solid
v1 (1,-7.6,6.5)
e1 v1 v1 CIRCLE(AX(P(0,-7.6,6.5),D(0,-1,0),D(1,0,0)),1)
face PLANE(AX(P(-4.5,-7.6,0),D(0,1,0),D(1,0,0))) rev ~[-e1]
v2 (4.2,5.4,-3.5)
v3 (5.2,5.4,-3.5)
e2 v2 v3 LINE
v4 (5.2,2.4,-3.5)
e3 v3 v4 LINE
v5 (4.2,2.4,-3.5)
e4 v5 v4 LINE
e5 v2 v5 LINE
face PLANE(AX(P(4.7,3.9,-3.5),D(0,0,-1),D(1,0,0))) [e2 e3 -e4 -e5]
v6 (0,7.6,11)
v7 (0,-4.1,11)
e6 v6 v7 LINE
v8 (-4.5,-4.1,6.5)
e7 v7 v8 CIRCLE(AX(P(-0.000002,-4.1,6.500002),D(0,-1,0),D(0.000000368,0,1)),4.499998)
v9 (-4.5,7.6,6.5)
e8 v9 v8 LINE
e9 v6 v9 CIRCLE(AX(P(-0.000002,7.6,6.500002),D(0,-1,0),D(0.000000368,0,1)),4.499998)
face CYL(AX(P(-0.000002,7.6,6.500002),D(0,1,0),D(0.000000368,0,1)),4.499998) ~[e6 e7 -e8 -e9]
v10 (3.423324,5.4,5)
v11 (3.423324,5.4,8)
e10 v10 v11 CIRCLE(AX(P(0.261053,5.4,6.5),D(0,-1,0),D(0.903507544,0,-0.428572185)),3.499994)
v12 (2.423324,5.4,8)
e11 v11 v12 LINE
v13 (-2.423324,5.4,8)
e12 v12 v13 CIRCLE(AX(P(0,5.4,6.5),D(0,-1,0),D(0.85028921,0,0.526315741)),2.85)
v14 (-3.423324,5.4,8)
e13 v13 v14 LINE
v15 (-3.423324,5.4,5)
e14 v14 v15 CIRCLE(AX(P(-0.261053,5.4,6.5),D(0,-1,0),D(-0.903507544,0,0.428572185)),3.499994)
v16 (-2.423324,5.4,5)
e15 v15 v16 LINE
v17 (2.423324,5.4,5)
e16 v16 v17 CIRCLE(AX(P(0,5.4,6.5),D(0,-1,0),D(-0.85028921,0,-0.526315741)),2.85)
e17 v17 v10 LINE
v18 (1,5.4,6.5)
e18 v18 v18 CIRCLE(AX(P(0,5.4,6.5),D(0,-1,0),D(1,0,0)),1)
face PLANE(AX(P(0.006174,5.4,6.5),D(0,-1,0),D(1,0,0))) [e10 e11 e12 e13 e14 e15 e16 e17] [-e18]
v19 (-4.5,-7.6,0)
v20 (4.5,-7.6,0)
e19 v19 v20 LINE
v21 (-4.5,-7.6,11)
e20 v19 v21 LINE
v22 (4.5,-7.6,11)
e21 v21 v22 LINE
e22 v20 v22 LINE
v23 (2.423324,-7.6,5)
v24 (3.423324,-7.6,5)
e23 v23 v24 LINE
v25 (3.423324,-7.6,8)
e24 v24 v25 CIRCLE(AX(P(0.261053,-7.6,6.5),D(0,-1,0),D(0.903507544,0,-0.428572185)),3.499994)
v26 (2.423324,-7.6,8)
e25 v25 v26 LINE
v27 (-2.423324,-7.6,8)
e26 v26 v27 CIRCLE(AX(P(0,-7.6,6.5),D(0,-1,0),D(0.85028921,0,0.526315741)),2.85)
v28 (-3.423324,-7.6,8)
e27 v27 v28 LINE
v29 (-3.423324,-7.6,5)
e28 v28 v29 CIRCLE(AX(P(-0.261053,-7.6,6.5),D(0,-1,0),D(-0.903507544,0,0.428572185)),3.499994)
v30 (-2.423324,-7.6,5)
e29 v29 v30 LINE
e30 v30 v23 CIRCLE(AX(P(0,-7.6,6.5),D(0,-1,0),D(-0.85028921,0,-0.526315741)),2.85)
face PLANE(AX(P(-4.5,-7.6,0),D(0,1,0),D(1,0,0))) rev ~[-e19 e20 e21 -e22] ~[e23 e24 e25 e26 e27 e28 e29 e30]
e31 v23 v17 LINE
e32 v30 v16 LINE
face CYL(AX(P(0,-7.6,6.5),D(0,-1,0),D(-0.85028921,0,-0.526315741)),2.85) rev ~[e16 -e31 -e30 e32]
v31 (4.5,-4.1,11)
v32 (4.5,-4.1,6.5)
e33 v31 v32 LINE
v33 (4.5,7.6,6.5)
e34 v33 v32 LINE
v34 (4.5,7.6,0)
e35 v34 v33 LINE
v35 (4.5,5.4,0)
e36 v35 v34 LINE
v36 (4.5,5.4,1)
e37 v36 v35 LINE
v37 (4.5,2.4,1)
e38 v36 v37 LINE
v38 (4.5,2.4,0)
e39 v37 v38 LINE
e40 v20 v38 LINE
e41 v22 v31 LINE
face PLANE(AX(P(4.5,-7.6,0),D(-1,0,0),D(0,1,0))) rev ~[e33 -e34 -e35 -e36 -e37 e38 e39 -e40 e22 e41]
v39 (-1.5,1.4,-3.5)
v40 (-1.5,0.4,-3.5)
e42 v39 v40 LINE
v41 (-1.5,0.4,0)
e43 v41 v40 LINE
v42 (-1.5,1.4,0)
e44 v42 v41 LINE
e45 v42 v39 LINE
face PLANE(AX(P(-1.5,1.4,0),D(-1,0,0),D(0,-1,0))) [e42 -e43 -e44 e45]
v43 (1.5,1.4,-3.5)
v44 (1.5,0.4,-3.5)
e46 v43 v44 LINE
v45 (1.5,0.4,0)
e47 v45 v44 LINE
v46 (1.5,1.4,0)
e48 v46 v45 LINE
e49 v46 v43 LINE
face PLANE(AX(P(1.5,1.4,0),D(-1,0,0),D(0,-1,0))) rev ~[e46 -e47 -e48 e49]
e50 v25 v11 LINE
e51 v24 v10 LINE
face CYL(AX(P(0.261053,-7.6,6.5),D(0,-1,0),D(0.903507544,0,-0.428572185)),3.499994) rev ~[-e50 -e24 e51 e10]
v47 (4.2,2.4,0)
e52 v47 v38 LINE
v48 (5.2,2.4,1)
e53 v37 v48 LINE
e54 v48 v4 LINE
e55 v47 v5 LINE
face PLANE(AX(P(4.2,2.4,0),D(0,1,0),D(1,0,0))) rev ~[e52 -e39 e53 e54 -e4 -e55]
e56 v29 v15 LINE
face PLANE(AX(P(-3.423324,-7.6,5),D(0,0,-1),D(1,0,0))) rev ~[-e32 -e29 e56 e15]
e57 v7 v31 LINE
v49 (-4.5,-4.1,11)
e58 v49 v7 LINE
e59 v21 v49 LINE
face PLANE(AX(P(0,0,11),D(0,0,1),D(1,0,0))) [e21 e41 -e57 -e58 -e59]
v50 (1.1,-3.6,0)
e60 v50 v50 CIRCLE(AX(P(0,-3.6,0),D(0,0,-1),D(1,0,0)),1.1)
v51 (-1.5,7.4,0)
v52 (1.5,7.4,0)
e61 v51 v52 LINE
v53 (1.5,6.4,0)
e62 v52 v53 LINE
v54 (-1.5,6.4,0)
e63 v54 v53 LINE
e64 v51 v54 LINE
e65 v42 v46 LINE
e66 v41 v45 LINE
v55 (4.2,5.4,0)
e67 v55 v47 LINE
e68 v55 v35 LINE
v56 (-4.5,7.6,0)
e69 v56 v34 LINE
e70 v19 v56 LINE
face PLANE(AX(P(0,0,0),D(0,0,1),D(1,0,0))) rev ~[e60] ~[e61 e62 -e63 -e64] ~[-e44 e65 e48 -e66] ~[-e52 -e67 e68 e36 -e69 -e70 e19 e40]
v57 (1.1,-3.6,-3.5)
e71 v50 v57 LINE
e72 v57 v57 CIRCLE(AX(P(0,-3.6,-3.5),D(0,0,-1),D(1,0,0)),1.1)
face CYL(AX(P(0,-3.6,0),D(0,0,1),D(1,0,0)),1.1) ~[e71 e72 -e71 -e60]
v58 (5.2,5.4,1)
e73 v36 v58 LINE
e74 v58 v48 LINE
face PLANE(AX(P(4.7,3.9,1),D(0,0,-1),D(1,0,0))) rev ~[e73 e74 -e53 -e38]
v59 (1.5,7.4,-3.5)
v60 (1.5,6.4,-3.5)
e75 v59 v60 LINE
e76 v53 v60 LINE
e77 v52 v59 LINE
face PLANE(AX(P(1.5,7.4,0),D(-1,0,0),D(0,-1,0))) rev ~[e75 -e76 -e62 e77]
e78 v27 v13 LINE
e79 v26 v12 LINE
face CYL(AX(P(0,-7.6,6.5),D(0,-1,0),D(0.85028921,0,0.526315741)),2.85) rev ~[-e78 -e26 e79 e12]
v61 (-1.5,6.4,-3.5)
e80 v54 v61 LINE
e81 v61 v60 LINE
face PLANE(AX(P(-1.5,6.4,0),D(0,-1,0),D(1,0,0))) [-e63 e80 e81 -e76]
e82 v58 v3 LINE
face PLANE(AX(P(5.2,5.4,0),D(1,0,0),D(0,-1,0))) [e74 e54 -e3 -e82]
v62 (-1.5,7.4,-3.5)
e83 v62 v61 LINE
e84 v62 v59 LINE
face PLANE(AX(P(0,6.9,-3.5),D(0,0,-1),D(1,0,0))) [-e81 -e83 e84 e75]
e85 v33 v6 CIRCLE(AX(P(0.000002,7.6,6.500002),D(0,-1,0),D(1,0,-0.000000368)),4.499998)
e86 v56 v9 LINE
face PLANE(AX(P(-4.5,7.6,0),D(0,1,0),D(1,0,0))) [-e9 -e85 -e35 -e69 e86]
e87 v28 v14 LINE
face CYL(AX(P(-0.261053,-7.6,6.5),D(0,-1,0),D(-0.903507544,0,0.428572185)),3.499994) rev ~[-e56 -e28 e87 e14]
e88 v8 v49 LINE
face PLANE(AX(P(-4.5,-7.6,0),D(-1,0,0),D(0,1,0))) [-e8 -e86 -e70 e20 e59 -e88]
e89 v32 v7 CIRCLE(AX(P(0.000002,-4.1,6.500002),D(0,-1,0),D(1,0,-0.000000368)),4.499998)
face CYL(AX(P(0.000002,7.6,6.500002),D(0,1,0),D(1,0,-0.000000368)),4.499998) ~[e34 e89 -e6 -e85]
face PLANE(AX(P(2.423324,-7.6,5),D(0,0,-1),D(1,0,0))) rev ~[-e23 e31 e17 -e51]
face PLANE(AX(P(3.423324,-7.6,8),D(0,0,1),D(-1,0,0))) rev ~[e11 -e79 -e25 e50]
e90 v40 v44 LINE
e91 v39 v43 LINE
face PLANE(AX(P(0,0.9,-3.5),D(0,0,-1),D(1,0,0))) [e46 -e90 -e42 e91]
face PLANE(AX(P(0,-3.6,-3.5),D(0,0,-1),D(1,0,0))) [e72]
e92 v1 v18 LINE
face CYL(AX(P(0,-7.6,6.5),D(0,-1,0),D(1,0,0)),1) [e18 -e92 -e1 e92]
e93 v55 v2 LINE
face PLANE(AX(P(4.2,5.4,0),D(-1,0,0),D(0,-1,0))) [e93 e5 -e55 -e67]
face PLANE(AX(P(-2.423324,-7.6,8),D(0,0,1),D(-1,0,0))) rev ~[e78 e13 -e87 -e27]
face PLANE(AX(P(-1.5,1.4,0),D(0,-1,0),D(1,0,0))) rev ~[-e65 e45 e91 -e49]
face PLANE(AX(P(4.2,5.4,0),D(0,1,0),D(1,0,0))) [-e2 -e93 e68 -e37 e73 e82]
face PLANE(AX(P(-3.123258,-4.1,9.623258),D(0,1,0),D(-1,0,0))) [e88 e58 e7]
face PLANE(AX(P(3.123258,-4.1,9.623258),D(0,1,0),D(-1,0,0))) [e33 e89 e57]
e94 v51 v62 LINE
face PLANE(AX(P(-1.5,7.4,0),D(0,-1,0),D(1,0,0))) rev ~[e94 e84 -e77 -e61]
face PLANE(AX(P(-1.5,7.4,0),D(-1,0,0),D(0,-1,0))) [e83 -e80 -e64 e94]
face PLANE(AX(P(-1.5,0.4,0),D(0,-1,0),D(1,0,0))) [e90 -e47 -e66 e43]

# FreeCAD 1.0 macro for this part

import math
import FreeCAD as App
import Part
import Sketcher
from FreeCAD import Vector
Q = App.Units.Quantity


def add_polygon(sketch, points):
    """Adds a closed chain of lines whose ends are joined by coincident constraints."""
    first, n = sketch.GeometryCount, len(points)
    for a, b in zip(points, points[1:] + points[:1]):
        sketch.addGeometry(Part.LineSegment(App.Vector(*a, 0), App.Vector(*b, 0)), False)
    for i in range(n):
        sketch.addConstraint(Sketcher.Constraint("Coincident", first + i, 2, first + (i + 1) % n, 1))

doc = App.newDocument("Part")
body = doc.addObject("PartDesign::Body", "Body")

# Sketch on XY plane
sketch1 = doc.addObject("Sketcher::SketchObject", "Sketch")
body.addObject(sketch1)
sketch1.AttachmentSupport = (doc.XY_Plane, [""])
sketch1.MapMode = "FlatFace"
add_polygon(sketch1, [(-4.5, 7.6), (-4.5, -7.6), (4.5, -7.6), (4.5, 7.6)])  # lines 0-3
sketch1.addConstraint([
    Sketcher.Constraint("Vertical", 0),
    Sketcher.Constraint("Horizontal", 1),
    Sketcher.Constraint("Vertical", 2),
    Sketcher.Constraint("Horizontal", 3),
    Sketcher.Constraint("Symmetric", 0, 2, 2, 2, -1, 1),
    Sketcher.Constraint("DistanceX", 1, 1, 1, 2, Q("9 mm")),
    Sketcher.Constraint("DistanceY", 0, 2, 0, 1, Q("15.2 mm")),
])
pad1 = doc.addObject("PartDesign::Pad", "Pad")
body.addObject(pad1)
pad1.Profile = sketch1
pad1.Length = 11

# Sketch on XZ plane
sketch2 = doc.addObject("Sketcher::SketchObject", "Sketch001")
body.addObject(sketch2)
sketch2.AttachmentSupport = (doc.XZ_Plane, [""])
sketch2.MapMode = "FlatFace"
sketch2.AttachmentOffset = App.Placement(Vector(0, 0, -7.6), App.Rotation())
sketch2.addGeometry([
    Part.ArcOfCircle(Part.Circle(Vector(0.000002, 6.500002, 0), Vector(0, 0, 1), 4.499998), math.radians(-0.000021), math.radians(90.000021)),  # 0
    Part.LineSegment(Vector(0, 11, 0), Vector(4.5, 11, 0)),  # 1
    Part.LineSegment(Vector(4.5, 11, 0), Vector(4.5, 6.5, 0)),  # 2
    Part.ArcOfCircle(Part.Circle(Vector(-0.000002, 6.500002, 0), Vector(0, 0, 1), 4.499998), math.radians(89.999979), math.radians(180.000021)),  # 3
    Part.LineSegment(Vector(-4.5, 6.5, 0), Vector(-4.5, 11, 0)),  # 4
    Part.LineSegment(Vector(-4.5, 11, 0), Vector(0, 11, 0)),  # 5
], False)
sketch2.addConstraint([
    Sketcher.Constraint("Tangent", 0, 2, 1, 1),
    Sketcher.Constraint("Coincident", 1, 2, 2, 1),
    Sketcher.Constraint("Tangent", 2, 2, 0, 1),
    Sketcher.Constraint("Tangent", 3, 2, 4, 1),
    Sketcher.Constraint("Coincident", 4, 2, 5, 1),
    Sketcher.Constraint("Tangent", 5, 2, 3, 1),
    Sketcher.Constraint("Horizontal", 1),
    Sketcher.Constraint("Vertical", 2),
    Sketcher.Constraint("Vertical", 4),
    Sketcher.Constraint("Horizontal", 5),
    Sketcher.Constraint("Coincident", 3, 3, 0, 3),
    Sketcher.Constraint("Equal", 0, 3),
    Sketcher.Constraint("PointOnObject", 0, 3, -2),
    Sketcher.Constraint("Radius", 0, Q("4.499998 mm")),
    Sketcher.Constraint("DistanceY", -1, 1, 0, 2, Q("11 mm")),
])
pocket1 = doc.addObject("PartDesign::Pocket", "Pocket")
body.addObject(pocket1)
pocket1.Profile = sketch2
pocket1.Length = 11.7
pocket1.Reversed = True

# Sketch on XZ plane
sketch3 = doc.addObject("Sketcher::SketchObject", "Sketch002")
body.addObject(sketch3)
sketch3.AttachmentSupport = (doc.XZ_Plane, [""])
sketch3.MapMode = "FlatFace"
sketch3.AttachmentOffset = App.Placement(Vector(0, 0, 7.6), App.Rotation())
sketch3.addGeometry([
    Part.ArcOfCircle(Part.Circle(Vector(0, 6.5, 0), Vector(0, 0, 1), 2.85), math.radians(31.756861), math.radians(148.243139)),  # 0
    Part.LineSegment(Vector(-2.423324, 8, 0), Vector(-3.423324, 8, 0)),  # 1
    Part.ArcOfCircle(Part.Circle(Vector(-0.261053, 6.5, 0), Vector(0, 0, 1), 3.499994), math.radians(154.623018), math.radians(205.376982)),  # 2
    Part.LineSegment(Vector(-3.423324, 5, 0), Vector(-2.423324, 5, 0)),  # 3
    Part.ArcOfCircle(Part.Circle(Vector(0, 6.5, 0), Vector(0, 0, 1), 2.85), math.radians(-148.243139), math.radians(-31.756861)),  # 4
    Part.LineSegment(Vector(2.423324, 5, 0), Vector(3.423324, 5, 0)),  # 5
    Part.ArcOfCircle(Part.Circle(Vector(0.261053, 6.5, 0), Vector(0, 0, 1), 3.499994), math.radians(-25.376982), math.radians(25.376982)),  # 6
    Part.LineSegment(Vector(3.423324, 8, 0), Vector(2.423324, 8, 0)),  # 7
    Part.Circle(Vector(0, 6.5, 0), Vector(0, 0, 1), 1),  # 8
], False)
sketch3.addConstraint([
    Sketcher.Constraint("Coincident", 0, 2, 1, 1),
    Sketcher.Constraint("Coincident", 1, 2, 2, 1),
    Sketcher.Constraint("Coincident", 2, 2, 3, 1),
    Sketcher.Constraint("Coincident", 3, 2, 4, 1),
    Sketcher.Constraint("Coincident", 4, 2, 5, 1),
    Sketcher.Constraint("Coincident", 5, 2, 6, 1),
    Sketcher.Constraint("Coincident", 6, 2, 7, 1),
    Sketcher.Constraint("Coincident", 7, 2, 0, 1),
    Sketcher.Constraint("Horizontal", 1),
    Sketcher.Constraint("Horizontal", 3),
    Sketcher.Constraint("Horizontal", 5),
    Sketcher.Constraint("Horizontal", 7),
    Sketcher.Constraint("Coincident", 4, 3, 0, 3),
    Sketcher.Constraint("Coincident", 8, 3, 0, 3),
    Sketcher.Constraint("Equal", 0, 4),
    Sketcher.Constraint("Equal", 2, 6),
    Sketcher.Constraint("Symmetric", 2, 3, 6, 3, -2),
    Sketcher.Constraint("Symmetric", 3, 2, 4, 2, -2),
    Sketcher.Constraint("Horizontal", 0, 3, 2, 3),
    Sketcher.Constraint("Horizontal", 1, 2, 6, 2),
    Sketcher.Constraint("Vertical", 1, 2, 2, 2),
    Sketcher.Constraint("Diameter", 8, Q("2 mm")),
    Sketcher.Constraint("DistanceX", 1, 2, 1, 1, Q("1 mm")),
    Sketcher.Constraint("Radius", 0, Q("2.85 mm")),
    Sketcher.Constraint("DistanceY", -1, 1, 0, 2, Q("8 mm")),
    Sketcher.Constraint("DistanceY", -1, 1, 2, 2, Q("5 mm")),
    Sketcher.Constraint("Radius", 2, Q("3.499994 mm")),
])
pocket2 = doc.addObject("PartDesign::Pocket", "Pocket001")
body.addObject(pocket2)
pocket2.Profile = sketch3
pocket2.Length = 13

# Sketch on XY plane
sketch4 = doc.addObject("Sketcher::SketchObject", "Sketch003")
body.addObject(sketch4)
sketch4.AttachmentSupport = (doc.XY_Plane, [""])
sketch4.MapMode = "FlatFace"
sketch4.addGeometry(Part.Circle(Vector(0, -3.6, 0), Vector(0, 0, 1), 1.1), False)  # 0
add_polygon(sketch4, [(-1.5, 0.4), (-1.5, 1.4), (1.5, 1.4), (1.5, 0.4)])  # lines 1-4
add_polygon(sketch4, [(-1.5, 6.4), (-1.5, 7.4), (1.5, 7.4), (1.5, 6.4)])  # lines 5-8
add_polygon(sketch4, [(4.2, 2.4), (4.2, 5.4), (5.2, 5.4), (5.2, 2.4)])  # lines 9-12
sketch4.addConstraint([
    Sketcher.Constraint("Vertical", 1),
    Sketcher.Constraint("Horizontal", 2),
    Sketcher.Constraint("Vertical", 3),
    Sketcher.Constraint("Horizontal", 4),
    Sketcher.Constraint("Vertical", 5),
    Sketcher.Constraint("Horizontal", 6),
    Sketcher.Constraint("Vertical", 7),
    Sketcher.Constraint("Horizontal", 8),
    Sketcher.Constraint("Vertical", 9),
    Sketcher.Constraint("Horizontal", 10),
    Sketcher.Constraint("Vertical", 11),
    Sketcher.Constraint("Horizontal", 12),
    Sketcher.Constraint("PointOnObject", 0, 3, -2),
    Sketcher.Constraint("Vertical", 4, 2, 5, 2),
    Sketcher.Constraint("Vertical", 3, 2, 6, 2),
    Sketcher.Constraint("Equal", 12, 1),
    Sketcher.Constraint("Equal", 3, 5),
    Sketcher.Constraint("Equal", 8, 9),
    Sketcher.Constraint("Diameter", 0, Q("2.2 mm")),
    Sketcher.Constraint("DistanceX", 2, 1, 2, 2, Q("3 mm")),
    Sketcher.Constraint("DistanceX", 10, 1, 10, 2, Q("1 mm")),
    Sketcher.Constraint("DistanceY", 0, 3, 1, 2, Q("5 mm")),
    Sketcher.Constraint("DistanceY", 1, 2, 5, 2, Q("6 mm")),
    Sketcher.Constraint("DistanceY", 9, 2, 7, 2, Q("1 mm")),
    Sketcher.Constraint("DistanceY", 0, 3, -1, 1, Q("3.6 mm")),
    Sketcher.Constraint("DistanceX", 1, 2, -1, 1, Q("1.5 mm")),
    Sketcher.Constraint("DistanceX", -1, 1, 9, 2, Q("4.2 mm")),
])
pad2 = doc.addObject("PartDesign::Pad", "Pad001")
body.addObject(pad2)
pad2.Profile = sketch4
pad2.Type = "TwoLengths"
pad2.Length = 3.5
pad2.Length2 = 1
pad2.Reversed = True

doc.recompute()
